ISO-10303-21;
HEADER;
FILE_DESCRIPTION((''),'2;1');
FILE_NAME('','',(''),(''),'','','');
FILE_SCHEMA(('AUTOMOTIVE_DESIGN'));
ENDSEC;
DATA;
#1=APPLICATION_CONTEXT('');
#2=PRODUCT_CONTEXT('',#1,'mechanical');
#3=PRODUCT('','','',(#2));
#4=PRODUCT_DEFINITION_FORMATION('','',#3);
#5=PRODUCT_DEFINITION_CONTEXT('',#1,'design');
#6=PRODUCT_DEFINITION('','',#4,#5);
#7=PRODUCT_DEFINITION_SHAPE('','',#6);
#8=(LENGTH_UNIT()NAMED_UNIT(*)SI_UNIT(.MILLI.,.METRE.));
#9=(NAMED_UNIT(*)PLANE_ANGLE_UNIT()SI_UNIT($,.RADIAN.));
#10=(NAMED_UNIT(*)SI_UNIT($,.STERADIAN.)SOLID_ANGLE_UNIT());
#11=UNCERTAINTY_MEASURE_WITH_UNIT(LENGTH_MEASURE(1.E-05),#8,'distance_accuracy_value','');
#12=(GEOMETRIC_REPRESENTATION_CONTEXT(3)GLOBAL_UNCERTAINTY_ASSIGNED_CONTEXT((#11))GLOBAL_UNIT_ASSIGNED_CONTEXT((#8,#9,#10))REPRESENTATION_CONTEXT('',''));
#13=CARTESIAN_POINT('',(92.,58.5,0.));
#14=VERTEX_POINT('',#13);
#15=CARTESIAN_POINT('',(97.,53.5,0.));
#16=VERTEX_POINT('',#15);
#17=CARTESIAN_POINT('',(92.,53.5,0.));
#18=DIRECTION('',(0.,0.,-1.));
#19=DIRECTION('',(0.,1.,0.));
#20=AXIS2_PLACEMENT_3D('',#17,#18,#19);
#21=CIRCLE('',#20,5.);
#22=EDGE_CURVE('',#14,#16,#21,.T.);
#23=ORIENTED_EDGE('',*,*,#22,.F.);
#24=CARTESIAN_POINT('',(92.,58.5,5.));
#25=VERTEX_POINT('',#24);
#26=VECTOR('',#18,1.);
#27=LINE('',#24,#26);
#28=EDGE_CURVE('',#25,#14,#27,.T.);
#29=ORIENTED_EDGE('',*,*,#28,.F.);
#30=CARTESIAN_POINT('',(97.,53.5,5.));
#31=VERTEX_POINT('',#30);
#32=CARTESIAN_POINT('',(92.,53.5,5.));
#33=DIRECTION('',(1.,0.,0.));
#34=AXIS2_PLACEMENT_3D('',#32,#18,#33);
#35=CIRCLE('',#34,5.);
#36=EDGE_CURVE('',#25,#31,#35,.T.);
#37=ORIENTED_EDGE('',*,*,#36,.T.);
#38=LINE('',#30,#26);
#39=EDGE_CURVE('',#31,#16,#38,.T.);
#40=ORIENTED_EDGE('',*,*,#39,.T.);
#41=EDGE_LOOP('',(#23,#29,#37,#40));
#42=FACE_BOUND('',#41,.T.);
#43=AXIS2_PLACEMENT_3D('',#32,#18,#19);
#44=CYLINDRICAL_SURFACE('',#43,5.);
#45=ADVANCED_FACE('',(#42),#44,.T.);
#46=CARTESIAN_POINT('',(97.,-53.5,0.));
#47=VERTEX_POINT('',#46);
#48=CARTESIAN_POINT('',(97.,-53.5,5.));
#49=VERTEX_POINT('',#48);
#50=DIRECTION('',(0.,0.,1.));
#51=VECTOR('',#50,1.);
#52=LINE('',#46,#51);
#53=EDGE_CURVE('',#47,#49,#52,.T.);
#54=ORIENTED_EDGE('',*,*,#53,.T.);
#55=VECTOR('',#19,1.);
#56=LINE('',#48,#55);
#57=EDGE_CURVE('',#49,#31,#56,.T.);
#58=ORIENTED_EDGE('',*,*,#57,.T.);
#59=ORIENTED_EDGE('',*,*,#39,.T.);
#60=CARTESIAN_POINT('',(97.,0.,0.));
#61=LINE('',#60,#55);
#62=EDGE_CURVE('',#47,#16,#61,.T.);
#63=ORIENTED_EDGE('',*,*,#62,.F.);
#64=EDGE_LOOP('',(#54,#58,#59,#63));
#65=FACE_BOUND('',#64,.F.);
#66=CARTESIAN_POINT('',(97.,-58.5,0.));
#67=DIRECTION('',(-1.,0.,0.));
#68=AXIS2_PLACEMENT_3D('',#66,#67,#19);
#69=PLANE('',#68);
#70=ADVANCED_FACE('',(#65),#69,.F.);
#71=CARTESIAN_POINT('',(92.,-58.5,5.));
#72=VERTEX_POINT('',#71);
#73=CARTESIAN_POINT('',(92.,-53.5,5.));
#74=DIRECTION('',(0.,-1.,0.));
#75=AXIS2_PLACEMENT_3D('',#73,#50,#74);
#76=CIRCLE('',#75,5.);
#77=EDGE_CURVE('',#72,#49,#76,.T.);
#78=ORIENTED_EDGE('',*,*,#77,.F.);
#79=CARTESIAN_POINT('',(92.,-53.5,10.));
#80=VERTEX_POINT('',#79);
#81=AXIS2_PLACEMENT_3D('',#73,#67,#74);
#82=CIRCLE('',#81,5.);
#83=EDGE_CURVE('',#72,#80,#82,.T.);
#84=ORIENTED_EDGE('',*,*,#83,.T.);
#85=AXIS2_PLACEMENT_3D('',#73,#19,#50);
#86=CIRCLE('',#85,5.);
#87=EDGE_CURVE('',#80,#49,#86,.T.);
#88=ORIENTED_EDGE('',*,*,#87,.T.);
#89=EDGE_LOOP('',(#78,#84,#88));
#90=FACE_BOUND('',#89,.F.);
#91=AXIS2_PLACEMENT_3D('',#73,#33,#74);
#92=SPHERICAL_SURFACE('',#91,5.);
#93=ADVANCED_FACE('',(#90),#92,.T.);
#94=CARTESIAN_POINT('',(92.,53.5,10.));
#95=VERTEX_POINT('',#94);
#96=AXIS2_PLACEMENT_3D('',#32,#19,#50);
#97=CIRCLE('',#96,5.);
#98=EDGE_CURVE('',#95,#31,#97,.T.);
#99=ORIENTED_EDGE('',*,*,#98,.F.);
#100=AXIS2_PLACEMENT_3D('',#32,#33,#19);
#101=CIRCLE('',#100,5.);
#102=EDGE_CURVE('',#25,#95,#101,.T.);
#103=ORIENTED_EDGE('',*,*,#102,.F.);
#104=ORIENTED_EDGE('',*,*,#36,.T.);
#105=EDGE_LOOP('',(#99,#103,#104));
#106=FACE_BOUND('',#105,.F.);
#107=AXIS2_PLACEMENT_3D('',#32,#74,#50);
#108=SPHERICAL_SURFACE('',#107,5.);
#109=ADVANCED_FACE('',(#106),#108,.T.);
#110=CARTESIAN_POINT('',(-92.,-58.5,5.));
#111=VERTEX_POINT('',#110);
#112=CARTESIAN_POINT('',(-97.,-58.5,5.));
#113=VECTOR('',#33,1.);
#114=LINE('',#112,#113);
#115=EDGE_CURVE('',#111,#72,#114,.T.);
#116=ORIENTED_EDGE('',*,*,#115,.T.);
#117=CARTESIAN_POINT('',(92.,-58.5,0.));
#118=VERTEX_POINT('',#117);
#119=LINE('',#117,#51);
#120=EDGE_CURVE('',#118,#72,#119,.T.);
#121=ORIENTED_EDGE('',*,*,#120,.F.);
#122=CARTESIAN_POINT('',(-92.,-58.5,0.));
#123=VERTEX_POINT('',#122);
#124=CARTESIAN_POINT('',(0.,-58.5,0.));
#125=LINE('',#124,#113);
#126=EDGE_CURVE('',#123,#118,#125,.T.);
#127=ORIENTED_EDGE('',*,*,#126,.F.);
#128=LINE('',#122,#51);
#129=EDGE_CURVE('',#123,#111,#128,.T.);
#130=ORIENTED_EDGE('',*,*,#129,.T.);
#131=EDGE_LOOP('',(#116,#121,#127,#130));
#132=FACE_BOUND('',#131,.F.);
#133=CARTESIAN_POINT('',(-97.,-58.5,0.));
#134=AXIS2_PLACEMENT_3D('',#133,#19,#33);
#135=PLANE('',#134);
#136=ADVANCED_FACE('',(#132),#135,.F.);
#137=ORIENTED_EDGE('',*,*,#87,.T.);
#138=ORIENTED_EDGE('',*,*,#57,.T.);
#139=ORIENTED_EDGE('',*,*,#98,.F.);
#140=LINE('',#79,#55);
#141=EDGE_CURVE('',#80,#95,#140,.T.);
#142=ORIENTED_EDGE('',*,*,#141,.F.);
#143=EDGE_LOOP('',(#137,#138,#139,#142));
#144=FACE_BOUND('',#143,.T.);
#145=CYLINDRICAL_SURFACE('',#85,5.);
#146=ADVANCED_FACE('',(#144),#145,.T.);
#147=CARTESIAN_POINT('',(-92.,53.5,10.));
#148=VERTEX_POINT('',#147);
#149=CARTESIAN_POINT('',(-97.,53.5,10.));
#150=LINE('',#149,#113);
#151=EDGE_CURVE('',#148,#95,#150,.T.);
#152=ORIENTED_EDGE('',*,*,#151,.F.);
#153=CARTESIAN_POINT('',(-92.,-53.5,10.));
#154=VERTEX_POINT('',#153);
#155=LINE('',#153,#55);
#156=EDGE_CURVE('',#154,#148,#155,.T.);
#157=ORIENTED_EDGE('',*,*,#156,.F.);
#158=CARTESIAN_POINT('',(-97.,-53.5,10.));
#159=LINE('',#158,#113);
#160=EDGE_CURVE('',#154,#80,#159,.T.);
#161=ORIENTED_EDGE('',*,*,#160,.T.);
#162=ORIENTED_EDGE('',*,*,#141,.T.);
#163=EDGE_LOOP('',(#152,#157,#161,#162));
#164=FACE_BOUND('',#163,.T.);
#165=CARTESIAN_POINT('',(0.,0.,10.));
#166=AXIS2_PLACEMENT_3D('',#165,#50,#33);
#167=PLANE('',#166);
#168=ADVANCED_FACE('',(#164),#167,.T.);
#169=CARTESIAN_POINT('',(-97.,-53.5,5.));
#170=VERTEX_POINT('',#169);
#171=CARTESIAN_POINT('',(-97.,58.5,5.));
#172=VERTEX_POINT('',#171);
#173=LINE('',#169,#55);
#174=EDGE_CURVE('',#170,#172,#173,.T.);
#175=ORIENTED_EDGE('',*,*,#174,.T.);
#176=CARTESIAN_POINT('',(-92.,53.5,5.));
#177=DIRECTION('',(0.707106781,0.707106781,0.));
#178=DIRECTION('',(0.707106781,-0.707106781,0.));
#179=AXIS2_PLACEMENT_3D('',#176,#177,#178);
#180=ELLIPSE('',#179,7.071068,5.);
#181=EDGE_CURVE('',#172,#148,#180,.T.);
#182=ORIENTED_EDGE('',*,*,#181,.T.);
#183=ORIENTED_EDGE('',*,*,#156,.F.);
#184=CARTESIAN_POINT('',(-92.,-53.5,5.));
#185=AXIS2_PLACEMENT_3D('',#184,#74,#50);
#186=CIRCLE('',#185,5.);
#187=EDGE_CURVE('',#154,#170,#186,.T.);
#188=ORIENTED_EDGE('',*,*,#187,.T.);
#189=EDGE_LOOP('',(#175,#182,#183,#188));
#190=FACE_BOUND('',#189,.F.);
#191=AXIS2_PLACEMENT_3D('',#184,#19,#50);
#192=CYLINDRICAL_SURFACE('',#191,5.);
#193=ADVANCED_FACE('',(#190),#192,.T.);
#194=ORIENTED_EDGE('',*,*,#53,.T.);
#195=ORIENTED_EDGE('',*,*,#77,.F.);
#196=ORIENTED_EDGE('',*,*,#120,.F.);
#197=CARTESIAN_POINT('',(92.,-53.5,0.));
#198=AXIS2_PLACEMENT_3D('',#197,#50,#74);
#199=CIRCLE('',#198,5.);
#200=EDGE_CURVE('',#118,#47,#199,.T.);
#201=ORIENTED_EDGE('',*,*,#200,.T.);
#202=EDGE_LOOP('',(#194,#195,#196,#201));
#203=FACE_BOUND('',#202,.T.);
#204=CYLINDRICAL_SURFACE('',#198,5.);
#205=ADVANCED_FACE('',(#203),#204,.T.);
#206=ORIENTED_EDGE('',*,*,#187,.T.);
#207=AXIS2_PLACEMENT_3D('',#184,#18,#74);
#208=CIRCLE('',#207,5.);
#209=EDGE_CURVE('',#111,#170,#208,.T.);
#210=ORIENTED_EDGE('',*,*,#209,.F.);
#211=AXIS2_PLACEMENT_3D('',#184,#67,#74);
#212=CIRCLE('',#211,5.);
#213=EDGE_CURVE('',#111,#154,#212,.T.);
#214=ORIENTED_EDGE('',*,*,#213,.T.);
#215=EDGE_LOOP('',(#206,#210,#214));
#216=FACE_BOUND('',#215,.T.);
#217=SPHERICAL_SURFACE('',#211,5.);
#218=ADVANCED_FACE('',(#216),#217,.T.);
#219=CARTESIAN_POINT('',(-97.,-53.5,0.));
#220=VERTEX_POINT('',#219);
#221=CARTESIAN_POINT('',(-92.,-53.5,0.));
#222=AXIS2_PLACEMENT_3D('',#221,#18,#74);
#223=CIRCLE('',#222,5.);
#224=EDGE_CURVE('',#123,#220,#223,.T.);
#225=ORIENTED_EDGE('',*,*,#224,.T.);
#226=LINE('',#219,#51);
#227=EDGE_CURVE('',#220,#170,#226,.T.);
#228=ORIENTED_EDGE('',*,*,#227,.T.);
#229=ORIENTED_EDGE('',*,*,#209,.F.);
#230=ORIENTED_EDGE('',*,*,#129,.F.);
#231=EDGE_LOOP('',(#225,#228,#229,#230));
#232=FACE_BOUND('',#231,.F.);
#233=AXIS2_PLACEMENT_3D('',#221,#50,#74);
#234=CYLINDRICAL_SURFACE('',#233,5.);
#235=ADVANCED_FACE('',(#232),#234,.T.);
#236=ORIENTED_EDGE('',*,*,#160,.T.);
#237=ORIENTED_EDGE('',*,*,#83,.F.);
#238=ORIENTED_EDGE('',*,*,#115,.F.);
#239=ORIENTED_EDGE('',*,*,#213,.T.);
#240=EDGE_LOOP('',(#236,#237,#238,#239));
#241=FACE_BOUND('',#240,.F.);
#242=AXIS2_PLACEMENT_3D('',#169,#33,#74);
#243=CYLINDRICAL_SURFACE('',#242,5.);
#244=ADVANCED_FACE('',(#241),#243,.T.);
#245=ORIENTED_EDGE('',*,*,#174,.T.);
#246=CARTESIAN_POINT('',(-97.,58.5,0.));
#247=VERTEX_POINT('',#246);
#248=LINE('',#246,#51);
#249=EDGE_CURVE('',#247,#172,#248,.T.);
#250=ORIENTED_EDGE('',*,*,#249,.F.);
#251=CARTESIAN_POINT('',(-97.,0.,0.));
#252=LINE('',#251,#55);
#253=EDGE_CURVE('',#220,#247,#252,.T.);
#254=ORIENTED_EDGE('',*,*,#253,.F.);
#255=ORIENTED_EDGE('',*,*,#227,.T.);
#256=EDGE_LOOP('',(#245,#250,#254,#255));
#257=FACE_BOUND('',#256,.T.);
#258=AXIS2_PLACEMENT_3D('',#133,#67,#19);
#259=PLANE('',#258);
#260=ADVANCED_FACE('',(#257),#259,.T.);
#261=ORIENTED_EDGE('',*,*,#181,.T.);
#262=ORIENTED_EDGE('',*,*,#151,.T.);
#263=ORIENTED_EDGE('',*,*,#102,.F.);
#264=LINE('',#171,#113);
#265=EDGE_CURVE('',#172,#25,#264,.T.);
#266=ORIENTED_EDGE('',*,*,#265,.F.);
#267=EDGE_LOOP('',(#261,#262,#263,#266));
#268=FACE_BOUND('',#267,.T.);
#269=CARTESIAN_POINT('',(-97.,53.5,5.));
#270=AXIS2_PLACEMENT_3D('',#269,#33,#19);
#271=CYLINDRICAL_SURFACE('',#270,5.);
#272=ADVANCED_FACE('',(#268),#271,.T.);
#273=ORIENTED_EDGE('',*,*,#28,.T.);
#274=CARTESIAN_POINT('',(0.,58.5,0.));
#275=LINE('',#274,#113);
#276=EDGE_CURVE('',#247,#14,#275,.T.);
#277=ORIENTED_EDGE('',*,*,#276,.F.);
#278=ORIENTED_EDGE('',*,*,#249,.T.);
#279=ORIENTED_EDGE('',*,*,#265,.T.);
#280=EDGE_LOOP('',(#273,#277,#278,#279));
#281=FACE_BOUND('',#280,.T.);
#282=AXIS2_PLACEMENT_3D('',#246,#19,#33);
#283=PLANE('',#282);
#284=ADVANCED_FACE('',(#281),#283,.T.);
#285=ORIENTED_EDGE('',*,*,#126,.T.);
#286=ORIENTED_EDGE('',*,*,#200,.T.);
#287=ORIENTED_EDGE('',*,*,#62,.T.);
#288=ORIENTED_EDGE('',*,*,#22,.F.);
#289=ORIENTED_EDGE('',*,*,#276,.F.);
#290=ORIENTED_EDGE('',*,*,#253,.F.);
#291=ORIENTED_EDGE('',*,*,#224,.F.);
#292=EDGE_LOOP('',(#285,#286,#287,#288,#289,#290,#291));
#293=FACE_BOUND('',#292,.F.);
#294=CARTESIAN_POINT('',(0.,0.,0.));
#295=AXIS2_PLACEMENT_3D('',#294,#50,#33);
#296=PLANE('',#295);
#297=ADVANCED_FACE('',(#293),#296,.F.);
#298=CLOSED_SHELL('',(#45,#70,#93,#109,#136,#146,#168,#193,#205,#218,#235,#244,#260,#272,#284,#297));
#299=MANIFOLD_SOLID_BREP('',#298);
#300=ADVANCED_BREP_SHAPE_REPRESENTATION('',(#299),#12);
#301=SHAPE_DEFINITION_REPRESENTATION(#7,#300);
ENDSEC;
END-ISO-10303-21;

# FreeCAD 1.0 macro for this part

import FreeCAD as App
import Part
import Sketcher

V = App.Vector


def edges_at(feature, points):
    """Names of the edges that pass closest to the given points."""
    edges = feature.Shape.Edges
    near = lambda p: min(range(len(edges)), key=lambda i: edges[i].distToShape(Part.Vertex(*p))[0])
    return sorted({f"Edge{near(p) + 1}" for p in points})

doc = App.newDocument("Part")
body = doc.addObject("PartDesign::Body", "Body")

sketch1 = doc.addObject("Sketcher::SketchObject", "Sketch")
body.addObject(sketch1)
sketch1.AttachmentSupport = (doc.XY_Plane, [""])
sketch1.MapMode = "FlatFace"
sketch1.addGeometry(Part.LineSegment(V(-97, 58, 0), V(-97, -58, 0)), False)
sketch1.addGeometry(Part.LineSegment(V(-97, -58, 0), V(97, -58, 0)), False)
sketch1.addGeometry(Part.LineSegment(V(97, -58, 0), V(97, 58, 0)), False)
sketch1.addGeometry(Part.LineSegment(V(97, 58, 0), V(-97, 58, 0)), False)
sketch1.addConstraint(Sketcher.Constraint("Coincident", 0, 2, 1, 1))
sketch1.addConstraint(Sketcher.Constraint("Coincident", 1, 2, 2, 1))
sketch1.addConstraint(Sketcher.Constraint("Coincident", 2, 2, 3, 1))
sketch1.addConstraint(Sketcher.Constraint("Coincident", 3, 2, 0, 1))
sketch1.addConstraint(Sketcher.Constraint("Vertical", 0))
sketch1.addConstraint(Sketcher.Constraint("Horizontal", 1))
sketch1.addConstraint(Sketcher.Constraint("Vertical", 2))
sketch1.addConstraint(Sketcher.Constraint("Horizontal", 3))
sketch1.addConstraint(Sketcher.Constraint("Symmetric", 0, 2, 2, 2, -1, 1))
sketch1.addConstraint(Sketcher.Constraint("DistanceX", 1, 1, 1, 2, 194.0))
sketch1.addConstraint(Sketcher.Constraint("DistanceY", 0, 2, 0, 1, 117.0))
pad1 = doc.addObject("PartDesign::Pad", "Pad")
body.addObject(pad1)
pad1.Profile = sketch1
pad1.Length = 10
doc.recompute()

fillet = doc.addObject("PartDesign::Fillet", "Fillet")
body.addObject(fillet)
fillet.Base = (pad1, edges_at(pad1, [(0, -58.5, 10)]))
fillet.Radius = 5
doc.recompute()

fillet2 = doc.addObject("PartDesign::Fillet", "Fillet001")
body.addObject(fillet2)
fillet2.Base = (fillet, edges_at(fillet, [(0, -58.5, 5), (97, -57.036, 8.536)]))
fillet2.Radius = 5
doc.recompute()

fillet3 = doc.addObject("PartDesign::Fillet", "Fillet002")
body.addObject(fillet3)
fillet3.Base = (fillet2, edges_at(fillet2, [(97, 2.5, 5), (95.536, 58.5, 8.536), (-97, -57.036, 8.536)]))
fillet3.Radius = 5

doc.recompute()
